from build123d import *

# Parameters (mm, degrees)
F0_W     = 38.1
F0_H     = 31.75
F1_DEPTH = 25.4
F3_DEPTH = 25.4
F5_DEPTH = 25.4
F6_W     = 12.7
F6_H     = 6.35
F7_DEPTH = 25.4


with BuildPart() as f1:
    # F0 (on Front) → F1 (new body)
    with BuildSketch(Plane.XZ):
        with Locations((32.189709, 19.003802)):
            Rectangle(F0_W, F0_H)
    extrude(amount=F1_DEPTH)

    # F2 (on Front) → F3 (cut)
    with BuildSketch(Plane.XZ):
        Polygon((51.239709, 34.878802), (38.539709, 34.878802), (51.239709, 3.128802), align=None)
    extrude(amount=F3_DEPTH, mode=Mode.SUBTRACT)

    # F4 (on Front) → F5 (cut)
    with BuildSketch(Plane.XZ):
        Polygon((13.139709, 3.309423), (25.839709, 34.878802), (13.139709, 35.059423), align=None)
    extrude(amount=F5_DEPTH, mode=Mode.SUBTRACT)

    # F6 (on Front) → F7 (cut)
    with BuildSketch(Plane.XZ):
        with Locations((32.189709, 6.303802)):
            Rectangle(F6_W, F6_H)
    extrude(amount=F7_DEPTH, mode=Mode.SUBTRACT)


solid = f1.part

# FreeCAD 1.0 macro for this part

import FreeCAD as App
import Part
import Sketcher
Q = App.Units.Quantity

doc = App.newDocument("Part")
params = doc.addObject("Spreadsheet::Sheet", "Params")
for row, (alias, value) in enumerate([
    ("sketch1_width", "1.5 in"),
    ("sketch1_height", "1.25 in"),
    ("pad1_length", "1 in"),
    ("sketch2_width", "0.5 in"),
    ("sketch2_height", "1.25 in"),
    ("pocket1_length", "1 in"),
    ("sketch3_height", "1.25 in"),
    ("pocket2_length", "1 in"),
    ("sketch4_width", "0.5 in"),
    ("sketch4_height", "0.25 in"),
    ("pocket3_length", "1 in"),
], start=1):
    params.set(f"A{row}", alias)
    params.set(f"B{row}", "=" + value)
    params.setAlias(f"B{row}", alias)

body = doc.addObject("PartDesign::Body", "Body")

# Sketch on XZ plane
sketch1 = doc.addObject("Sketcher::SketchObject", "Sketch")
body.addObject(sketch1)
sketch1.AttachmentSupport = (doc.XZ_Plane, [""])
sketch1.MapMode = "FlatFace"
sketch1.addGeometry([
    Part.LineSegment(App.Vector(13.139709, 34.878802, 0), App.Vector(13.139709, 3.128802, 0)),
    Part.LineSegment(App.Vector(13.139709, 3.128802, 0), App.Vector(51.239709, 3.128802, 0)),
    Part.LineSegment(App.Vector(51.239709, 3.128802, 0), App.Vector(51.239709, 34.878802, 0)),
    Part.LineSegment(App.Vector(51.239709, 34.878802, 0), App.Vector(13.139709, 34.878802, 0)),
], False)
sketch1.addConstraint([
    Sketcher.Constraint("Coincident", 0, 2, 1, 1),
    Sketcher.Constraint("Coincident", 1, 2, 2, 1),
    Sketcher.Constraint("Coincident", 2, 2, 3, 1),
    Sketcher.Constraint("Coincident", 3, 2, 0, 1),
    Sketcher.Constraint("Vertical", 0),
    Sketcher.Constraint("Horizontal", 1),
    Sketcher.Constraint("Vertical", 2),
    Sketcher.Constraint("Horizontal", 3),
    Sketcher.Constraint("DistanceX", 1, 1, 1, 2, Q("1.5 in")),
    Sketcher.Constraint("DistanceY", 0, 2, 0, 1, Q("1.25 in")),
    Sketcher.Constraint("DistanceY", -1, 1, 0, 2, 3.128802),
    Sketcher.Constraint("DistanceX", -1, 1, 0, 2, 13.139709),
])
sketch1.setExpression("Constraints[8]", "Params.sketch1_width")
sketch1.setExpression("Constraints[9]", "Params.sketch1_height")
pad1 = doc.addObject("PartDesign::Pad", "Pad")
body.addObject(pad1)
pad1.Profile = sketch1
pad1.setExpression("Length", "Params.pad1_length")

# Sketch on XZ plane
sketch2 = doc.addObject("Sketcher::SketchObject", "Sketch001")
body.addObject(sketch2)
sketch2.AttachmentSupport = (doc.XZ_Plane, [""])
sketch2.MapMode = "FlatFace"
sketch2.addGeometry([
    Part.LineSegment(App.Vector(51.239709, 34.878802, 0), App.Vector(38.539709, 34.878802, 0)),
    Part.LineSegment(App.Vector(38.539709, 34.878802, 0), App.Vector(51.239709, 3.128802, 0)),
    Part.LineSegment(App.Vector(51.239709, 3.128802, 0), App.Vector(51.239709, 34.878802, 0)),
], False)
sketch2.addConstraint([
    Sketcher.Constraint("Coincident", 0, 2, 1, 1),
    Sketcher.Constraint("Coincident", 1, 2, 2, 1),
    Sketcher.Constraint("Coincident", 2, 2, 0, 1),
    Sketcher.Constraint("Horizontal", 0),
    Sketcher.Constraint("Vertical", 2),
    Sketcher.Constraint("DistanceX", 0, 2, 0, 1, Q("0.5 in")),
    Sketcher.Constraint("DistanceY", 2, 1, 2, 2, Q("1.25 in")),
    Sketcher.Constraint("DistanceY", -1, 1, 1, 2, 3.128802),
    Sketcher.Constraint("DistanceX", -1, 1, 0, 2, 38.539709),
])
sketch2.setExpression("Constraints[5]", "Params.sketch2_width")
sketch2.setExpression("Constraints[6]", "Params.sketch2_height")
pocket1 = doc.addObject("PartDesign::Pocket", "Pocket")
body.addObject(pocket1)
pocket1.Profile = sketch2
pocket1.setExpression("Length", "Params.pocket1_length")
pocket1.Reversed = True

# Sketch on XZ plane
sketch3 = doc.addObject("Sketcher::SketchObject", "Sketch002")
body.addObject(sketch3)
sketch3.AttachmentSupport = (doc.XZ_Plane, [""])
sketch3.MapMode = "FlatFace"
sketch3.addGeometry([
    Part.LineSegment(App.Vector(13.139709, 3.309423, 0), App.Vector(25.839709, 34.878802, 0)),
    Part.LineSegment(App.Vector(25.839709, 34.878802, 0), App.Vector(13.139709, 35.059423, 0)),
    Part.LineSegment(App.Vector(13.139709, 35.059423, 0), App.Vector(13.139709, 3.309423, 0)),
], False)
sketch3.addConstraint([
    Sketcher.Constraint("Coincident", 0, 2, 1, 1),
    Sketcher.Constraint("Coincident", 1, 2, 2, 1),
    Sketcher.Constraint("Coincident", 2, 2, 0, 1),
    Sketcher.Constraint("Vertical", 2),
    Sketcher.Constraint("DistanceY", 2, 2, 2, 1, Q("1.25 in")),
    Sketcher.Constraint("DistanceX", 1, 2, 0, 2, Q("0.5 in")),
    Sketcher.Constraint("Distance", 0, 34.02816),
    Sketcher.Constraint("DistanceX", -1, 1, 0, 2, 25.839709),
    Sketcher.Constraint("DistanceY", -1, 1, 0, 2, 34.878802),
])
sketch3.setExpression("Constraints[4]", "Params.sketch3_height")
pocket2 = doc.addObject("PartDesign::Pocket", "Pocket001")
body.addObject(pocket2)
pocket2.Profile = sketch3
pocket2.setExpression("Length", "Params.pocket2_length")
pocket2.Reversed = True

# Sketch on XZ plane
sketch4 = doc.addObject("Sketcher::SketchObject", "Sketch003")
body.addObject(sketch4)
sketch4.AttachmentSupport = (doc.XZ_Plane, [""])
sketch4.MapMode = "FlatFace"
sketch4.addGeometry([
    Part.LineSegment(App.Vector(25.839709, 9.478802, 0), App.Vector(25.839709, 3.128802, 0)),
    Part.LineSegment(App.Vector(25.839709, 3.128802, 0), App.Vector(38.539709, 3.128802, 0)),
    Part.LineSegment(App.Vector(38.539709, 3.128802, 0), App.Vector(38.539709, 9.478802, 0)),
    Part.LineSegment(App.Vector(38.539709, 9.478802, 0), App.Vector(25.839709, 9.478802, 0)),
], False)
sketch4.addConstraint([
    Sketcher.Constraint("Coincident", 0, 2, 1, 1),
    Sketcher.Constraint("Coincident", 1, 2, 2, 1),
    Sketcher.Constraint("Coincident", 2, 2, 3, 1),
    Sketcher.Constraint("Coincident", 3, 2, 0, 1),
    Sketcher.Constraint("Vertical", 0),
    Sketcher.Constraint("Horizontal", 1),
    Sketcher.Constraint("Vertical", 2),
    Sketcher.Constraint("Horizontal", 3),
    Sketcher.Constraint("DistanceX", 1, 1, 1, 2, Q("0.5 in")),
    Sketcher.Constraint("DistanceY", 0, 2, 0, 1, Q("0.25 in")),
    Sketcher.Constraint("DistanceY", -1, 1, 0, 2, 3.128802),
    Sketcher.Constraint("DistanceX", -1, 1, 0, 2, 25.839709),
])
sketch4.setExpression("Constraints[8]", "Params.sketch4_width")
sketch4.setExpression("Constraints[9]", "Params.sketch4_height")
pocket3 = doc.addObject("PartDesign::Pocket", "Pocket002")
body.addObject(pocket3)
pocket3.Profile = sketch4
pocket3.setExpression("Length", "Params.pocket3_length")
pocket3.Reversed = True

doc.recompute()
